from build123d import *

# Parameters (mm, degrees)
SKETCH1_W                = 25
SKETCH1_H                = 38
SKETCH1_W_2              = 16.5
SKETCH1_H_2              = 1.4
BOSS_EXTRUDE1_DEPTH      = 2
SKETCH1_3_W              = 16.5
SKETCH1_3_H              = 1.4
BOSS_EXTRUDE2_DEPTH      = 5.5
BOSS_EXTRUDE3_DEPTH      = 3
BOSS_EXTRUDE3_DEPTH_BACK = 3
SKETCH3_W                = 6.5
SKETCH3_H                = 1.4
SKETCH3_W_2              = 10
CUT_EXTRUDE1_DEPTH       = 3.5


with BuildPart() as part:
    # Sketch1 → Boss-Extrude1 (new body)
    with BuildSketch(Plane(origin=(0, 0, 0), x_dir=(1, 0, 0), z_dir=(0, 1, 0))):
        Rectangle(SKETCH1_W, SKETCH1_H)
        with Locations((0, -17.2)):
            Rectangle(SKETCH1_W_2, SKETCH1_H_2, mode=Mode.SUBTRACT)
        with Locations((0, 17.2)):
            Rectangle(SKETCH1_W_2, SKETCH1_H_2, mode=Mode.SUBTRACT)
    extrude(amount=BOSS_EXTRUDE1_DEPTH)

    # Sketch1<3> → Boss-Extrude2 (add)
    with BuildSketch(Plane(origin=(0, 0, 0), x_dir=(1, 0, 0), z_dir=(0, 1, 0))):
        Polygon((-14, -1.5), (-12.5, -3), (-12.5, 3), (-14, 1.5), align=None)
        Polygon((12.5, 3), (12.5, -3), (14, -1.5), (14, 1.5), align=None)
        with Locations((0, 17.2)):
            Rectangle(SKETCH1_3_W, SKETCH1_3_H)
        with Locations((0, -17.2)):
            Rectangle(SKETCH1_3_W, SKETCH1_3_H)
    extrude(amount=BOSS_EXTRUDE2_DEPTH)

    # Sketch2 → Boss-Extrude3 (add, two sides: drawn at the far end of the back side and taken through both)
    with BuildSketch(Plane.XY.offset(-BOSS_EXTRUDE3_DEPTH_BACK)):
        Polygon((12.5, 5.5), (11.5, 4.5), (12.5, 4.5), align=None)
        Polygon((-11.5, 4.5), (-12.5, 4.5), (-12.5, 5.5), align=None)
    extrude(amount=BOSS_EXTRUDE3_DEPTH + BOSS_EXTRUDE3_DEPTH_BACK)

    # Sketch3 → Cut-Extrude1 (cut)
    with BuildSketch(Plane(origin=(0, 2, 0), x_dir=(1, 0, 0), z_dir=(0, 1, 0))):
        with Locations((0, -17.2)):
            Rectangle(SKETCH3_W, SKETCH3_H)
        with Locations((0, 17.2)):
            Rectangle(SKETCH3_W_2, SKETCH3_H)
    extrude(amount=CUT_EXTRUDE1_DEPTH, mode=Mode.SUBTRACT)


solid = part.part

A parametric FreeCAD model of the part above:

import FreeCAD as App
import Part
import Sketcher
from FreeCAD import Vector
Q = App.Units.Quantity


def add_polygon(sketch, points):
    """Adds a closed chain of lines whose ends are joined by coincident constraints."""
    first, n = sketch.GeometryCount, len(points)
    for a, b in zip(points, points[1:] + points[:1]):
        sketch.addGeometry(Part.LineSegment(App.Vector(*a, 0), App.Vector(*b, 0)), False)
    for i in range(n):
        sketch.addConstraint(Sketcher.Constraint("Coincident", first + i, 2, first + (i + 1) % n, 1))

doc = App.newDocument("Part")
body = doc.addObject("PartDesign::Body", "Body")

sketch1 = body.newObject("Sketcher::SketchObject", "Sketch")
sketch1.AttachmentSupport = (doc.getObject("XZ_Plane"), [""])
sketch1.MapMode = "FlatFace"
add_polygon(sketch1, [(-12.5, -19), (-12.5, 19), (12.5, 19), (12.5, -19)])
add_polygon(sketch1, [(8.2, 17.9), (-8.2, 17.9), (-8.2, 16.5), (8.2, 16.5)])
add_polygon(sketch1, [(8.2, -16.5), (-8.2, -16.5), (-8.2, -17.9), (8.2, -17.9)])
sketch1.addConstraint(Sketcher.Constraint("Vertical", 0))
sketch1.addConstraint(Sketcher.Constraint("Horizontal", 1))
sketch1.addConstraint(Sketcher.Constraint("Vertical", 2))
sketch1.addConstraint(Sketcher.Constraint("Horizontal", 3))
sketch1.addConstraint(Sketcher.Constraint("Horizontal", 4))
sketch1.addConstraint(Sketcher.Constraint("Vertical", 5))
sketch1.addConstraint(Sketcher.Constraint("Horizontal", 6))
sketch1.addConstraint(Sketcher.Constraint("Vertical", 7))
sketch1.addConstraint(Sketcher.Constraint("Horizontal", 8))
sketch1.addConstraint(Sketcher.Constraint("Vertical", 9))
sketch1.addConstraint(Sketcher.Constraint("Horizontal", 10))
sketch1.addConstraint(Sketcher.Constraint("Vertical", 11))
sketch1.addConstraint(Sketcher.Constraint("Symmetric", 0, 2, 2, 2, -1, 1))
sketch1.addConstraint(Sketcher.Constraint("Symmetric", 6, 2, 8, 2, -1, 1))
sketch1.addConstraint(Sketcher.Constraint("Symmetric", 4, 2, 10, 2, -1, 1))
sketch1.addConstraint(Sketcher.Constraint("Vertical", 5, 2, 8, 2))
sketch1.addConstraint(Sketcher.Constraint("DistanceX", 1, 1, 1, 2, Q("25 mm")))
sketch1.addConstraint(Sketcher.Constraint("DistanceY", 0, 1, 0, 2, Q("38 mm")))
sketch1.addConstraint(Sketcher.Constraint("DistanceX", 4, 2, 4, 1, Q("16.5 mm")))
sketch1.addConstraint(Sketcher.Constraint("DistanceY", 5, 2, 5, 1, Q("1.4 mm")))
sketch1.addConstraint(Sketcher.Constraint("DistanceY", 8, 2, 5, 2, Q("33 mm")))
pad1 = body.newObject("PartDesign::Pad", "Pad")
pad1.Profile = sketch1
pad1.Length = 2
pad1.Reversed = True

sketch2 = body.newObject("Sketcher::SketchObject", "Sketch001")
sketch2.AttachmentSupport = (doc.getObject("XZ_Plane"), [""])
sketch2.MapMode = "FlatFace"
add_polygon(sketch2, [(-14, 1.5), (-12.5, 3), (-12.5, -3), (-14, -1.5)])
add_polygon(sketch2, [(12.5, -3), (12.5, 3), (14, 1.5), (14, -1.5)])
add_polygon(sketch2, [(-8.2, -17.9), (-8.2, -16.5), (8.2, -16.5), (8.2, -17.9)])
add_polygon(sketch2, [(-8.2, 16.5), (-8.2, 17.9), (8.2, 17.9), (8.2, 16.5)])
sketch2.addConstraint(Sketcher.Constraint("Vertical", 1))
sketch2.addConstraint(Sketcher.Constraint("Vertical", 3))
sketch2.addConstraint(Sketcher.Constraint("Vertical", 4))
sketch2.addConstraint(Sketcher.Constraint("Vertical", 6))
sketch2.addConstraint(Sketcher.Constraint("Vertical", 8))
sketch2.addConstraint(Sketcher.Constraint("Horizontal", 9))
sketch2.addConstraint(Sketcher.Constraint("Vertical", 10))
sketch2.addConstraint(Sketcher.Constraint("Horizontal", 11))
sketch2.addConstraint(Sketcher.Constraint("Vertical", 12))
sketch2.addConstraint(Sketcher.Constraint("Horizontal", 13))
sketch2.addConstraint(Sketcher.Constraint("Vertical", 14))
sketch2.addConstraint(Sketcher.Constraint("Horizontal", 15))
sketch2.addConstraint(Sketcher.Constraint("Symmetric", 1, 2, 4, 2, -1, 1))
sketch2.addConstraint(Sketcher.Constraint("Symmetric", 2, 2, 5, 2, -1, 1))
sketch2.addConstraint(Sketcher.Constraint("Symmetric", 10, 2, 12, 2, -1, 1))
sketch2.addConstraint(Sketcher.Constraint("Symmetric", 8, 2, 14, 2, -1, 1))
sketch2.addConstraint(Sketcher.Constraint("Perpendicular", 0, 2))
sketch2.addConstraint(Sketcher.Constraint("Perpendicular", 5, 7))
sketch2.addConstraint(Sketcher.Constraint("Horizontal", 0, 2, 4, 2))
sketch2.addConstraint(Sketcher.Constraint("Horizontal", 3, 2, 5, 2))
sketch2.addConstraint(Sketcher.Constraint("Horizontal", 2, 2, 6, 2))
sketch2.addConstraint(Sketcher.Constraint("Vertical", 11, 2, 12, 2))
sketch2.addConstraint(Sketcher.Constraint("DistanceY", 1, 2, 1, 1, Q("6 mm")))
sketch2.addConstraint(Sketcher.Constraint("DistanceY", 3, 1, 3, 2, Q("3 mm")))
sketch2.addConstraint(Sketcher.Constraint("DistanceX", 9, 1, 9, 2, Q("16.5 mm")))
sketch2.addConstraint(Sketcher.Constraint("DistanceY", 8, 1, 8, 2, Q("1.4 mm")))
sketch2.addConstraint(Sketcher.Constraint("DistanceX", 2, 2, -1, 1, Q("14 mm")))
sketch2.addConstraint(Sketcher.Constraint("DistanceY", 8, 2, 2, 2, Q("15 mm")))
pad2 = body.newObject("PartDesign::Pad", "Pad001")
pad2.Profile = sketch2
pad2.Length = 5.5
pad2.Reversed = True

sketch3 = body.newObject("Sketcher::SketchObject", "Sketch002")
sketch3.AttachmentSupport = (doc.getObject("XY_Plane"), [""])
sketch3.MapMode = "FlatFace"
add_polygon(sketch3, [(12.5, 5.5), (11.5, 4.5), (12.5, 4.5)])
add_polygon(sketch3, [(-12.5, 4.5), (-11.5, 4.5), (-12.5, 5.5)])
sketch3.addConstraint(Sketcher.Constraint("Horizontal", 1))
sketch3.addConstraint(Sketcher.Constraint("Vertical", 2))
sketch3.addConstraint(Sketcher.Constraint("Horizontal", 3))
sketch3.addConstraint(Sketcher.Constraint("Vertical", 5))
sketch3.addConstraint(Sketcher.Constraint("Symmetric", 0, 2, 3, 2, -2))
sketch3.addConstraint(Sketcher.Constraint("Symmetric", 2, 2, 4, 2, -2))
sketch3.addConstraint(Sketcher.Constraint("Perpendicular", 0, 4))
sketch3.addConstraint(Sketcher.Constraint("DistanceX", 1, 1, 1, 2, Q("1 mm")))
sketch3.addConstraint(Sketcher.Constraint("DistanceX", 3, 2, 0, 2, Q("23 mm")))
sketch3.addConstraint(Sketcher.Constraint("DistanceY", -1, 1, 0, 2, Q("4.5 mm")))
pad3 = body.newObject("PartDesign::Pad", "Pad002")
pad3.Profile = sketch3
pad3.Type = "TwoLengths"
pad3.Length = 3
pad3.Length2 = 3

sketch4 = body.newObject("Sketcher::SketchObject", "Sketch003")
sketch4.AttachmentSupport = (doc.getObject("XZ_Plane"), [""])
sketch4.MapMode = "FlatFace"
sketch4.AttachmentOffset = App.Placement(Vector(0, 0, -2), App.Rotation())
add_polygon(sketch4, [(-3.2, 16.5), (-3.2, 17.9), (3.2, 17.9), (3.2, 16.5)])
add_polygon(sketch4, [(-5, -17.9), (-5, -16.5), (5, -16.5), (5, -17.9)])
sketch4.addConstraint(Sketcher.Constraint("Vertical", 0))
sketch4.addConstraint(Sketcher.Constraint("Horizontal", 1))
sketch4.addConstraint(Sketcher.Constraint("Vertical", 2))
sketch4.addConstraint(Sketcher.Constraint("Horizontal", 3))
sketch4.addConstraint(Sketcher.Constraint("Vertical", 4))
sketch4.addConstraint(Sketcher.Constraint("Horizontal", 5))
sketch4.addConstraint(Sketcher.Constraint("Vertical", 6))
sketch4.addConstraint(Sketcher.Constraint("Horizontal", 7))
sketch4.addConstraint(Sketcher.Constraint("Equal", 2, 4))
sketch4.addConstraint(Sketcher.Constraint("DistanceX", 5, 1, 5, 2, Q("10 mm")))
sketch4.addConstraint(Sketcher.Constraint("DistanceX", 1, 1, 1, 2, Q("6.5 mm")))
sketch4.addConstraint(Sketcher.Constraint("DistanceY", 0, 1, 0, 2, Q("1.4 mm")))
sketch4.addConstraint(Sketcher.Constraint("DistanceX", 4, 2, -1, 1, Q("5 mm")))
sketch4.addConstraint(Sketcher.Constraint("DistanceY", 4, 2, 3, 2, Q("33 mm")))
sketch4.addConstraint(Sketcher.Constraint("DistanceY", -1, 1, 0, 2, Q("17.9 mm")))
sketch4.addConstraint(Sketcher.Constraint("DistanceX", 0, 2, -1, 1, Q("3.25 mm")))
pocket1 = body.newObject("PartDesign::Pocket", "Pocket")
pocket1.Profile = sketch4
pocket1.Length = 3.5

doc.recompute()
